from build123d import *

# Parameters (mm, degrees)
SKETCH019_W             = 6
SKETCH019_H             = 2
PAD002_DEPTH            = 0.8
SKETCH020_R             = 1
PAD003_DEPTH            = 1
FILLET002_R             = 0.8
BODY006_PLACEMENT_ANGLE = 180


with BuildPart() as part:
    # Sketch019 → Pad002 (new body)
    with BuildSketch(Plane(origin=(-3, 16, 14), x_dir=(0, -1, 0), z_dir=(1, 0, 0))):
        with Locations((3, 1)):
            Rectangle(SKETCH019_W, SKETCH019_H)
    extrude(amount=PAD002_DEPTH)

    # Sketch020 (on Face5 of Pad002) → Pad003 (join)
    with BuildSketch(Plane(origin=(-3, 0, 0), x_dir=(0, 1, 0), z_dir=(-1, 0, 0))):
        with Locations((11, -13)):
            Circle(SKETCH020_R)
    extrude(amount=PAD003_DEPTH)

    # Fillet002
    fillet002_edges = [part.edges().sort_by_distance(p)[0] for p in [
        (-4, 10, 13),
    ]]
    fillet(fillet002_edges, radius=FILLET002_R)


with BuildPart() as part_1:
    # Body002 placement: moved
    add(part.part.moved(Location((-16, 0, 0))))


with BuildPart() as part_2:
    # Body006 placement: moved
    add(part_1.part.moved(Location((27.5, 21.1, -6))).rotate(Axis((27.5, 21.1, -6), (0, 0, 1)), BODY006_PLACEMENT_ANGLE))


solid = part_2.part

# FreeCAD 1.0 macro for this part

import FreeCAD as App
import Part
import Sketcher


def edges_at(feature, points):
    """Names of the edges that pass closest to the given points."""
    edges = feature.Shape.Edges
    near = lambda p: min(range(len(edges)), key=lambda i: edges[i].distToShape(Part.Vertex(*p))[0])
    return sorted({f"Edge{near(p) + 1}" for p in points})

doc = App.newDocument("Part")
body = doc.addObject("PartDesign::Body", "Body")

# Sketch on YZ plane
sketch1 = body.newObject("Sketcher::SketchObject", "Sketch")
sketch1.AttachmentSupport = (doc.getObject("YZ_Plane"), [""])
sketch1.MapMode = "FlatFace"
sketch1.AttachmentOffset = App.Placement(App.Vector(0, 0, -3), App.Rotation())
sketch1.addGeometry(Part.LineSegment(App.Vector(16, 12, 0), App.Vector(16, 14, 0)), False)
sketch1.addGeometry(Part.LineSegment(App.Vector(16, 14, 0), App.Vector(10, 14, 0)), False)
sketch1.addGeometry(Part.LineSegment(App.Vector(10, 14, 0), App.Vector(10, 12, 0)), False)
sketch1.addGeometry(Part.LineSegment(App.Vector(10, 12, 0), App.Vector(16, 12, 0)), False)
sketch1.addConstraint(Sketcher.Constraint("Coincident", 0, 2, 1, 1))
sketch1.addConstraint(Sketcher.Constraint("Coincident", 1, 2, 2, 1))
sketch1.addConstraint(Sketcher.Constraint("Coincident", 2, 2, 3, 1))
sketch1.addConstraint(Sketcher.Constraint("Coincident", 3, 2, 0, 1))
sketch1.addConstraint(Sketcher.Constraint("Vertical", 0))
sketch1.addConstraint(Sketcher.Constraint("Horizontal", 1))
sketch1.addConstraint(Sketcher.Constraint("Vertical", 2))
sketch1.addConstraint(Sketcher.Constraint("Horizontal", 3))
sketch1.addConstraint(Sketcher.Constraint("DistanceX", 1, 2, 1, 1, 6.0))
sketch1.addConstraint(Sketcher.Constraint("DistanceY", 0, 1, 0, 2, 2.0))
sketch1.addConstraint(Sketcher.Constraint("DistanceX", -1, 1, 0, 2, 16.0))
sketch1.addConstraint(Sketcher.Constraint("DistanceY", -1, 1, 0, 2, 14.0))
pad1 = body.newObject("PartDesign::Pad", "Pad")
pad1.Profile = sketch1
pad1.Length = 0.8

# Sketch on YZ plane
sketch2 = body.newObject("Sketcher::SketchObject", "Sketch001")
sketch2.AttachmentSupport = (doc.getObject("YZ_Plane"), [""])
sketch2.MapMode = "FlatFace"
sketch2.AttachmentOffset = App.Placement(App.Vector(0, 0, -3), App.Rotation())
sketch2.addGeometry(Part.Circle(App.Vector(11, 13, 0), App.Vector(0, 0, 1), 1), False)
sketch2.addConstraint(Sketcher.Constraint("Diameter", 0, 2.0))
sketch2.addConstraint(Sketcher.Constraint("DistanceX", -1, 1, 0, 3, 11.0))
sketch2.addConstraint(Sketcher.Constraint("DistanceY", -1, 1, 0, 3, 13.0))
pad2 = body.newObject("PartDesign::Pad", "Pad001")
pad2.Profile = sketch2
pad2.Length = 1
pad2.Reversed = True
doc.recompute()

fillet = body.newObject("PartDesign::Fillet", "Fillet")
fillet.Base = (pad2, edges_at(pad2, [(-4, 10, 13)]))
fillet.Radius = 0.8
body2 = doc.addObject("PartDesign::Body", "Body001")
doc.recompute()

body.Placement = App.Placement(App.Vector(-16, 0, 0), App.Rotation(App.Vector(0, 0, 1), 0))
boolean = body2.newObject("PartDesign::Boolean", "Boolean")
boolean.Type = "Fuse"
boolean.addObjects([body])
body3 = doc.addObject("PartDesign::Body", "Body002")
doc.recompute()

body2.Placement = App.Placement(App.Vector(27.5, 21.1, -6), App.Rotation(App.Vector(0, 0, 1), 180))
boolean2 = body3.newObject("PartDesign::Boolean", "Boolean001")
boolean2.Type = "Fuse"
boolean2.addObjects([body2])

doc.recompute()
